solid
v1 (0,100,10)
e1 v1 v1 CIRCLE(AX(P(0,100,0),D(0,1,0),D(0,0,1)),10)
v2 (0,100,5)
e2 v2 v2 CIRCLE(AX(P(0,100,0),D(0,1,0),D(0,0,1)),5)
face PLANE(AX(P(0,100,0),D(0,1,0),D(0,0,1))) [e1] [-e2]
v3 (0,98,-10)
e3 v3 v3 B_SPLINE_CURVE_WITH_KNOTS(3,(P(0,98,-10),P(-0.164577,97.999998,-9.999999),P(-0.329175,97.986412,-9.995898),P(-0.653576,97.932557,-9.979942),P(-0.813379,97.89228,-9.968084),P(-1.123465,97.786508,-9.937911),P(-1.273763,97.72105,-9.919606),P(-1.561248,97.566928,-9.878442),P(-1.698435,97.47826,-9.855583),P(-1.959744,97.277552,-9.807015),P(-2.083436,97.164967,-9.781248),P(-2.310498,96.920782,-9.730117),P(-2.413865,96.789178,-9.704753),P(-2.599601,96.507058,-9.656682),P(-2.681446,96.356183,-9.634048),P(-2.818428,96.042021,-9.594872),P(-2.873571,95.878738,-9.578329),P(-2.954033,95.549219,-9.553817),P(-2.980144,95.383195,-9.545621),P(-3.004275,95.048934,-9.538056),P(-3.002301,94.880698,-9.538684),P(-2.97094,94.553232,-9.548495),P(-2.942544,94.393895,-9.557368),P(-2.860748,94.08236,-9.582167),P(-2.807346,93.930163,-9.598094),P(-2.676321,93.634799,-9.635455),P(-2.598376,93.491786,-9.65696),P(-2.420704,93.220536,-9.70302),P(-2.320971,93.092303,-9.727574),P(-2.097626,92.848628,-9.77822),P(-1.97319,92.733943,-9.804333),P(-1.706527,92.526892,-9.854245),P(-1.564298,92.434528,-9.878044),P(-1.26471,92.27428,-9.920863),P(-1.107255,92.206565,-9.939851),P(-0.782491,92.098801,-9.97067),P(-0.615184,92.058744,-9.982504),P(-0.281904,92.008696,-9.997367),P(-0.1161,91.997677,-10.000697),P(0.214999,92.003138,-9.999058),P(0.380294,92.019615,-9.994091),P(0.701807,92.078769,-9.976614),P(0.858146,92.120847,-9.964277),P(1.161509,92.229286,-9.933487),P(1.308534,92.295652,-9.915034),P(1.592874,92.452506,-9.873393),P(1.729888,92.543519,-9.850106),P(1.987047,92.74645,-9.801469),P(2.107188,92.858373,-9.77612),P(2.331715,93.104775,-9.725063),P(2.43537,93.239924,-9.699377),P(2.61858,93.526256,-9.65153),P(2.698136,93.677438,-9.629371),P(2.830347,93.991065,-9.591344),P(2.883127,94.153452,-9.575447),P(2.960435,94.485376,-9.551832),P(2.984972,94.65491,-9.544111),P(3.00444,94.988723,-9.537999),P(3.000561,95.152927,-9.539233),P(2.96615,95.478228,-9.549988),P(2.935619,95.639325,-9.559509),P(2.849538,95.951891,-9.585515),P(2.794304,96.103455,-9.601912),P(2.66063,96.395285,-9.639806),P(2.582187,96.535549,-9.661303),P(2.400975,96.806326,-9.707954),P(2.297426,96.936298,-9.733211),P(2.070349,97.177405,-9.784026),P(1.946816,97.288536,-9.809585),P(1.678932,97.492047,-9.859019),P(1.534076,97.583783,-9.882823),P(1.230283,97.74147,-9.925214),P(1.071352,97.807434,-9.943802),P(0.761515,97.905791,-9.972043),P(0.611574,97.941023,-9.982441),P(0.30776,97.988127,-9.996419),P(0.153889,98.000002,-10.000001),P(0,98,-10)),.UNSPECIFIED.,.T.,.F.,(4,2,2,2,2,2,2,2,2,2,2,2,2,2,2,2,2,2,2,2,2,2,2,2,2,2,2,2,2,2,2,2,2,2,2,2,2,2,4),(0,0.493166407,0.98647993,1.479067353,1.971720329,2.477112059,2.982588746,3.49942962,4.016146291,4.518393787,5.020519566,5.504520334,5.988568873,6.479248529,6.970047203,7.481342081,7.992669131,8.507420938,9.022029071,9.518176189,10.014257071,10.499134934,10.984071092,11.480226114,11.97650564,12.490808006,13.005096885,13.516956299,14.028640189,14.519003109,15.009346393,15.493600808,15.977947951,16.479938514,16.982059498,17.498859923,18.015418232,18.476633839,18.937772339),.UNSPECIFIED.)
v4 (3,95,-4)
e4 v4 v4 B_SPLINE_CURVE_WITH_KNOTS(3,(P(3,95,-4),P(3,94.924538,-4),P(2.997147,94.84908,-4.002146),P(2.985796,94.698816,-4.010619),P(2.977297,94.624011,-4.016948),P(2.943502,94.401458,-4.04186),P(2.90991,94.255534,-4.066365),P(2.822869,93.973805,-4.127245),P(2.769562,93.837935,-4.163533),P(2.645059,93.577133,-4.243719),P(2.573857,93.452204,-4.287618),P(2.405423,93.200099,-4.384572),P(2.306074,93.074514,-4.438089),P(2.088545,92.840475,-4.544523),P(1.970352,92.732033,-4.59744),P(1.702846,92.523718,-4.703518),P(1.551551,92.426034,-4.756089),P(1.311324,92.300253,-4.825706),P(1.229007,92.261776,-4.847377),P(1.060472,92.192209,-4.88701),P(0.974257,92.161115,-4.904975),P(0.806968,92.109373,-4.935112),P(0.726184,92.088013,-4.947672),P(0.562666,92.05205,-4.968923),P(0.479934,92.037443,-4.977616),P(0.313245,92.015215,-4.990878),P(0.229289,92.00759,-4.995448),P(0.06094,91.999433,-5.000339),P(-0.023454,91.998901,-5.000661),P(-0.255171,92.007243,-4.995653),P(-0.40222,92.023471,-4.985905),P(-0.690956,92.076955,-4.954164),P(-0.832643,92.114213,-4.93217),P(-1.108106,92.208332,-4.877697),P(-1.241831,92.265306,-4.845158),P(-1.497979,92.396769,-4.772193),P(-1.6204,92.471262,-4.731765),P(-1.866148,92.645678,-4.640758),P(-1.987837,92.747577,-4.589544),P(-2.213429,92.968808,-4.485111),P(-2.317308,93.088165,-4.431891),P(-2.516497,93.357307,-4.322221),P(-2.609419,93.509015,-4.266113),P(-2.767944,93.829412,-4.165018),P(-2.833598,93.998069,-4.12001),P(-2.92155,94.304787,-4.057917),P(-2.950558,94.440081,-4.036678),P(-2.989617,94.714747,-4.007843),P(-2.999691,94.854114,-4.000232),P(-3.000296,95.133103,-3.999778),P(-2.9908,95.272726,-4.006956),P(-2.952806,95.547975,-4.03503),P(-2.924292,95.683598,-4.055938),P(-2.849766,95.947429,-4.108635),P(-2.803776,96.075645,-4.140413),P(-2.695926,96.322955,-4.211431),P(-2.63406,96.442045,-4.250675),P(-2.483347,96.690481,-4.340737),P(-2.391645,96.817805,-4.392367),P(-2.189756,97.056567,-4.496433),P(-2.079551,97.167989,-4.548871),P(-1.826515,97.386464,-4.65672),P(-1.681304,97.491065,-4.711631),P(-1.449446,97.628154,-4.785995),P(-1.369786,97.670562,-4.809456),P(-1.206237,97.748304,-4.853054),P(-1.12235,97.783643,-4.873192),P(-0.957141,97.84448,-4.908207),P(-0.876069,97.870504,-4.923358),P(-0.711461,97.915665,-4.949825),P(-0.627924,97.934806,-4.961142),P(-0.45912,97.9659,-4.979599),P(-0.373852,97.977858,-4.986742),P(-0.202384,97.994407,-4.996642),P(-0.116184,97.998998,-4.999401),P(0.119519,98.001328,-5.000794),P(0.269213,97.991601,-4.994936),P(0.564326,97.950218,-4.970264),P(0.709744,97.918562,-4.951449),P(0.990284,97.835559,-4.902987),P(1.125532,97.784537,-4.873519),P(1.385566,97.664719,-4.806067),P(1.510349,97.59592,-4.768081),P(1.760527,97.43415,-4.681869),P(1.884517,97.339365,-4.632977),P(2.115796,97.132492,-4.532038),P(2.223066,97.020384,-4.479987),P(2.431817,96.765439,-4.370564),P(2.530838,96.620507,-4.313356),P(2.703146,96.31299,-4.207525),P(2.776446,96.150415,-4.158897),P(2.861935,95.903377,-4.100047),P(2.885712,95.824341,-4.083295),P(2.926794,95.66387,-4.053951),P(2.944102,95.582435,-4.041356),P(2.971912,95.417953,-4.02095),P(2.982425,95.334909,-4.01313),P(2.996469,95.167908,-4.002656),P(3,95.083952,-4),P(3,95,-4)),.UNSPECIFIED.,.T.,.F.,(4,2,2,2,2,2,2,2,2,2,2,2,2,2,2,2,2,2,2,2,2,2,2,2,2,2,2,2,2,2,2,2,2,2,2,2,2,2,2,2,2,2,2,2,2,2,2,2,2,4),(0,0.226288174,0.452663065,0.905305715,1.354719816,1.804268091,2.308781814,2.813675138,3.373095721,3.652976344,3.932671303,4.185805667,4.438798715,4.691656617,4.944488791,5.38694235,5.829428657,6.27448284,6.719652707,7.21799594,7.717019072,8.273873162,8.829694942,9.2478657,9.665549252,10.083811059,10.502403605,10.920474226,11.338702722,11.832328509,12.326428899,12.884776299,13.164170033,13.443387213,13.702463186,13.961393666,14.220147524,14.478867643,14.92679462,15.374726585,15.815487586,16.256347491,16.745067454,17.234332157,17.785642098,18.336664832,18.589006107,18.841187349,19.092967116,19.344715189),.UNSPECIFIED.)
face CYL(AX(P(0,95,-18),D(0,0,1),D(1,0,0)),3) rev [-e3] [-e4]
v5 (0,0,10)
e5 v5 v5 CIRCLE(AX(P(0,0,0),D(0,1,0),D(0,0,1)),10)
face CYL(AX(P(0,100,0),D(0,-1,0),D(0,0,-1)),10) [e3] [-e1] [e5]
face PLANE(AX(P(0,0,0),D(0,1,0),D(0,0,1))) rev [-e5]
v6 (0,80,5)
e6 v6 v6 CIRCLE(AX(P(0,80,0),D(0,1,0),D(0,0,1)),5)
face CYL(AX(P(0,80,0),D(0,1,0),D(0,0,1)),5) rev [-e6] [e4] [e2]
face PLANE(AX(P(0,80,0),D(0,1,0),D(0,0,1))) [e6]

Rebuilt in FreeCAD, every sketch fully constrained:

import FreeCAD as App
import Part
import Sketcher

V = App.Vector

doc = App.newDocument("Part")
params = doc.addObject("Spreadsheet::Sheet", "Params")
for row, (alias, value) in enumerate([
    ("sketch1_diameter", "20 mm"),
    ("pad1_length", "100 mm"),
    ("sketch2_diameter", "10 mm"),
    ("pocket1_length", "20 mm"),
    ("sketch3_diameter", "6 mm"),
    ("pocket2_length", "18 mm"),
], start=1):
    params.set(f"A{row}", alias)
    params.set(f"B{row}", "=" + value)
    params.setAlias(f"B{row}", alias)

body = doc.addObject("PartDesign::Body", "Body")

# Sketch on XZ plane
sketch1 = body.newObject("Sketcher::SketchObject", "Sketch")
sketch1.AttachmentSupport = (doc.getObject("XZ_Plane"), [""])
sketch1.MapMode = "FlatFace"
sketch1.addGeometry(Part.Circle(V(0, 0, 0), V(0, 0, 1), 10), False)
sketch1.addConstraint(Sketcher.Constraint("Coincident", 0, 3, -1, 1))
sketch1.addConstraint(Sketcher.Constraint("Diameter", 0, 20.0))
sketch1.setExpression("Constraints[1]", "Params.sketch1_diameter")
pad1 = body.newObject("PartDesign::Pad", "Pad")
pad1.Profile = sketch1
pad1.setExpression("Length", "Params.pad1_length")
pad1.Reversed = True

# Sketch on XZ plane
sketch2 = body.newObject("Sketcher::SketchObject", "Sketch001")
sketch2.AttachmentSupport = (doc.getObject("XZ_Plane"), [""])
sketch2.MapMode = "FlatFace"
sketch2.AttachmentOffset = App.Placement(V(0, 0, -100), App.Rotation())
sketch2.addGeometry(Part.Circle(V(0, 0, 0), V(0, 0, 1), 5), False)
sketch2.addConstraint(Sketcher.Constraint("Coincident", 0, 3, -1, 1))
sketch2.addConstraint(Sketcher.Constraint("Diameter", 0, 10.0))
sketch2.setExpression("Constraints[1]", "Params.sketch2_diameter")
pocket1 = body.newObject("PartDesign::Pocket", "Pocket")
pocket1.Profile = sketch2
pocket1.setExpression("Length", "Params.pocket1_length")
pocket1.Reversed = True

# Sketch on XY plane
sketch3 = body.newObject("Sketcher::SketchObject", "Sketch002")
sketch3.AttachmentSupport = (doc.getObject("XY_Plane"), [""])
sketch3.MapMode = "FlatFace"
sketch3.addGeometry(Part.Circle(V(0, 95, 0), V(0, 0, 1), 3), False)
sketch3.addConstraint(Sketcher.Constraint("PointOnObject", 0, 3, -2))
sketch3.addConstraint(Sketcher.Constraint("Diameter", 0, 6.0))
sketch3.addConstraint(Sketcher.Constraint("DistanceY", -1, 1, 0, 3, 95.0))
sketch3.setExpression("Constraints[1]", "Params.sketch3_diameter")
pocket2 = body.newObject("PartDesign::Pocket", "Pocket001")
pocket2.Profile = sketch3
pocket2.setExpression("Length", "Params.pocket2_length")

doc.recompute()
